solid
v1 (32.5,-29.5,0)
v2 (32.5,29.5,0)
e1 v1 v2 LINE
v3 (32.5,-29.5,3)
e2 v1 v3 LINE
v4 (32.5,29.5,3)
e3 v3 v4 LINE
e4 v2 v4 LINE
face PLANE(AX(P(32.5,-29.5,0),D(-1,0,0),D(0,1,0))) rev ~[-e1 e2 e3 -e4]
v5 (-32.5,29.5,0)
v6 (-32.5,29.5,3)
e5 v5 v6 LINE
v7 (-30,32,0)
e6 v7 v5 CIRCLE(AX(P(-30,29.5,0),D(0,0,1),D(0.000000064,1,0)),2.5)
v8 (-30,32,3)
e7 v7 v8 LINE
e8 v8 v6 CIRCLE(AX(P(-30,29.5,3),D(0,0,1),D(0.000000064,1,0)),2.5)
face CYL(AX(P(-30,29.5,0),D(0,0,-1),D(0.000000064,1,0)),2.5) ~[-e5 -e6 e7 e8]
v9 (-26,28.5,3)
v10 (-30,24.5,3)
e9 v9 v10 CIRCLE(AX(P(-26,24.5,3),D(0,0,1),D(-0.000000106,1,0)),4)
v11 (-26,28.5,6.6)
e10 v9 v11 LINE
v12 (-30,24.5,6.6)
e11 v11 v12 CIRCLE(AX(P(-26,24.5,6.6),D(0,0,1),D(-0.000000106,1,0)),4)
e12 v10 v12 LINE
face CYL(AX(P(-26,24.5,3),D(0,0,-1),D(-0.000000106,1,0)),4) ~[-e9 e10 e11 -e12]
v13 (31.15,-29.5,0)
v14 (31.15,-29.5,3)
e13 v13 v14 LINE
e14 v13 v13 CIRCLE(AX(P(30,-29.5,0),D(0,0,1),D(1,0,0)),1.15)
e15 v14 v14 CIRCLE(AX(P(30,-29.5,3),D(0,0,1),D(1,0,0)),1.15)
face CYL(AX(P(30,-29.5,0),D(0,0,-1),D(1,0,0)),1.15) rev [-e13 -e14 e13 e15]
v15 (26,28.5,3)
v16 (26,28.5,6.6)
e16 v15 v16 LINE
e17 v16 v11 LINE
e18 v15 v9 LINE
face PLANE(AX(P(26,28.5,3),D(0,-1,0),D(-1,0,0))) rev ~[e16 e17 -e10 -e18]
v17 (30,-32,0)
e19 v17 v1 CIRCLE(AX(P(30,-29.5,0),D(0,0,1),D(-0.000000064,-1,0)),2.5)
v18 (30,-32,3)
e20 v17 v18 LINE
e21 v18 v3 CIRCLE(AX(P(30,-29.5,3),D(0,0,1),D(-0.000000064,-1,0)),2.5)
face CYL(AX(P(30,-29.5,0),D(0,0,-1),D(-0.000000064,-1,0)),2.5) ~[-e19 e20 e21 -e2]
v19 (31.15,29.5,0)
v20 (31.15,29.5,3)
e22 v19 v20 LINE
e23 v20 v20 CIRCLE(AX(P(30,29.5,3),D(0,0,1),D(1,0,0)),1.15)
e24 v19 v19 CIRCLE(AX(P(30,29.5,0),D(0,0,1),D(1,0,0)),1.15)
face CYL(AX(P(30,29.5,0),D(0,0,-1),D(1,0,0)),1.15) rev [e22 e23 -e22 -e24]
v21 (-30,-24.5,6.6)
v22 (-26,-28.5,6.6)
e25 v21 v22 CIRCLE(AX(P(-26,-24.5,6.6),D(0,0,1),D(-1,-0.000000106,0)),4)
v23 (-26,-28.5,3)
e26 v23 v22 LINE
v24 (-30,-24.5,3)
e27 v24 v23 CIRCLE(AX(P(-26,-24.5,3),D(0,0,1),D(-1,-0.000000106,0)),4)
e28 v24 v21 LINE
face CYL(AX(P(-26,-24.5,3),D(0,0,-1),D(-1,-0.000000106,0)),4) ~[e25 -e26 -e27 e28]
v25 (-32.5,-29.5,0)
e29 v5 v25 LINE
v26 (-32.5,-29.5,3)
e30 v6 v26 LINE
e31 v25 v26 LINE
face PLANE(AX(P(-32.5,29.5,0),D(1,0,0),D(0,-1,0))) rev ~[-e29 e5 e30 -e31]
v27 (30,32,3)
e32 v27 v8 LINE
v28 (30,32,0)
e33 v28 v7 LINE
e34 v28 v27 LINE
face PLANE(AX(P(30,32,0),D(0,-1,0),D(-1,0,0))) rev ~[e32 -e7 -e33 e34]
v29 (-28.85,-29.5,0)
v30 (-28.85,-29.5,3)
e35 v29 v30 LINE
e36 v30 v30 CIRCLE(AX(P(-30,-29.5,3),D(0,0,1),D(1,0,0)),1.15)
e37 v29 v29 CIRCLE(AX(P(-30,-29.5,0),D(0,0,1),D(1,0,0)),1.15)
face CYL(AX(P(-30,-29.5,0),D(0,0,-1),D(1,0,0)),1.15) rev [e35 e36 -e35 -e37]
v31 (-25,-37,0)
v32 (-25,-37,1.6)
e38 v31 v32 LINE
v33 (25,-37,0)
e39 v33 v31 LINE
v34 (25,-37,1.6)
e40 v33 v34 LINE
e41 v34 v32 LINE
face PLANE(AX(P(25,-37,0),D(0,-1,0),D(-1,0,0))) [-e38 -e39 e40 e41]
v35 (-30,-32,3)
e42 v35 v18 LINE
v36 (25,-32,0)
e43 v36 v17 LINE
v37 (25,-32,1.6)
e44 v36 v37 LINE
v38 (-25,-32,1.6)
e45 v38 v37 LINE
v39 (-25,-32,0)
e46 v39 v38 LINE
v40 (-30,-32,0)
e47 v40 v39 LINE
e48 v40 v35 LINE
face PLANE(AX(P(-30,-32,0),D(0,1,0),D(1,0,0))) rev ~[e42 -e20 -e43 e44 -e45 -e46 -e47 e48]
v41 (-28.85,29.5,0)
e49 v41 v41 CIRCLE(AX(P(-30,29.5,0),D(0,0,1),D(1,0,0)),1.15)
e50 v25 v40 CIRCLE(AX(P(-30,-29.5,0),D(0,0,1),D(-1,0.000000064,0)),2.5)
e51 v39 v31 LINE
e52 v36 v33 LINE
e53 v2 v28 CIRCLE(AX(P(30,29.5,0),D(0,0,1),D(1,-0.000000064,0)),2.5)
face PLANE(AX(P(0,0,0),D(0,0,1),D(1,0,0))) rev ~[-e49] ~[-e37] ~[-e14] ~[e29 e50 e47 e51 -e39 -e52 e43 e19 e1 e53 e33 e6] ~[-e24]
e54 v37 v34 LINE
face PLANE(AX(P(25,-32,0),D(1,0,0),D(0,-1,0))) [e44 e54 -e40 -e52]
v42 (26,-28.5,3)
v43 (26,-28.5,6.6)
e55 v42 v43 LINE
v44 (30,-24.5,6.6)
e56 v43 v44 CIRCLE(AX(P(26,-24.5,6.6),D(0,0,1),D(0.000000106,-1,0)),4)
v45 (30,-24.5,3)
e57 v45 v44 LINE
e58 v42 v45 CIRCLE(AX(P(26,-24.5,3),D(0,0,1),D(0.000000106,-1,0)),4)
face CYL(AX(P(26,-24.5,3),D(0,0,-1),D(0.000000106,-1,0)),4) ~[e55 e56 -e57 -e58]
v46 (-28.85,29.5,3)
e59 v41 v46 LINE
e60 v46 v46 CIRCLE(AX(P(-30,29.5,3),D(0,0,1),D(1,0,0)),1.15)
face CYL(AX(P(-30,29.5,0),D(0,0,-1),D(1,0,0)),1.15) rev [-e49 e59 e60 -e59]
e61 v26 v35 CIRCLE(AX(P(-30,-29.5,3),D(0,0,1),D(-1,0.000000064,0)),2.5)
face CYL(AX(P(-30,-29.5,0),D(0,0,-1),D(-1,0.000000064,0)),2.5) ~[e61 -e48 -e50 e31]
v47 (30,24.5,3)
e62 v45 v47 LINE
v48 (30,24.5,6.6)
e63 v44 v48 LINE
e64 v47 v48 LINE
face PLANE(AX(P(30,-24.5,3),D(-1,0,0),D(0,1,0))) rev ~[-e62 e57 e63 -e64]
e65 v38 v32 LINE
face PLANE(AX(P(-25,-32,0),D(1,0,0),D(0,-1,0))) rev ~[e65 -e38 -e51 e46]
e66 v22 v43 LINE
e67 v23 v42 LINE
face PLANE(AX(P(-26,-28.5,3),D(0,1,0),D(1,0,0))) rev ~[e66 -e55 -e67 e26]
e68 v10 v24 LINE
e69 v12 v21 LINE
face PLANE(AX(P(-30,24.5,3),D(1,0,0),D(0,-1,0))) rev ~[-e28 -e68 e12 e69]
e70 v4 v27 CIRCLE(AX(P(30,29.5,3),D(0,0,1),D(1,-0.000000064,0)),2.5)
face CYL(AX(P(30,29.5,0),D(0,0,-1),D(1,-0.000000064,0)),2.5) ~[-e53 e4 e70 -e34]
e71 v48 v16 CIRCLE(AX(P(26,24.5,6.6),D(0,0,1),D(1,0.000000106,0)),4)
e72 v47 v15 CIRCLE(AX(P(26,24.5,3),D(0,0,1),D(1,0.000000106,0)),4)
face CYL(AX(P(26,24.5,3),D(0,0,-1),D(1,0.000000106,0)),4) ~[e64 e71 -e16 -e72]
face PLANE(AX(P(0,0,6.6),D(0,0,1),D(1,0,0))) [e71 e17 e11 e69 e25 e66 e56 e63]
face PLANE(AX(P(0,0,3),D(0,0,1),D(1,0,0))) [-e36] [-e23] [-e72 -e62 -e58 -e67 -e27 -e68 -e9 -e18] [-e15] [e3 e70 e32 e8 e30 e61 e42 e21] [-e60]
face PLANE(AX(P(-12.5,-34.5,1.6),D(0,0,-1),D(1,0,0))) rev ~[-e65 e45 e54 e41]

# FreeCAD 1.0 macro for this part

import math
import FreeCAD as App
import Part
import Sketcher

V = App.Vector
Q = App.Units.Quantity


def add_polygon(sketch, points):
    """Adds a closed chain of lines whose ends are joined by coincident constraints."""
    first, n = sketch.GeometryCount, len(points)
    for a, b in zip(points, points[1:] + points[:1]):
        sketch.addGeometry(Part.LineSegment(App.Vector(*a, 0), App.Vector(*b, 0)), False)
    for i in range(n):
        sketch.addConstraint(Sketcher.Constraint("Coincident", first + i, 2, first + (i + 1) % n, 1))

doc = App.newDocument("Part")
body = doc.addObject("PartDesign::Body", "Body")

# Sketch on XY plane
sketch1 = body.newObject("Sketcher::SketchObject", "Sketch")
sketch1.AttachmentSupport = (doc.getObject("XY_Plane"), [""])
sketch1.MapMode = "FlatFace"
sketch1.addGeometry(Part.ArcOfCircle(Part.Circle(V(-30, -29.5, 0), V(0, 0, 1), 2.5), math.radians(180), math.radians(270)), False)
sketch1.addGeometry(Part.LineSegment(V(-30, -32, 0), V(30, -32, 0)), False)
sketch1.addGeometry(Part.ArcOfCircle(Part.Circle(V(30, -29.5, 0), V(0, 0, 1), 2.5), math.radians(-90), math.radians(0)), False)
sketch1.addGeometry(Part.LineSegment(V(32.5, -29.5, 0), V(32.5, 29.5, 0)), False)
sketch1.addGeometry(Part.ArcOfCircle(Part.Circle(V(30, 29.5, 0), V(0, 0, 1), 2.5), math.radians(0), math.radians(90)), False)
sketch1.addGeometry(Part.LineSegment(V(30, 32, 0), V(-30, 32, 0)), False)
sketch1.addGeometry(Part.ArcOfCircle(Part.Circle(V(-30, 29.5, 0), V(0, 0, 1), 2.5), math.radians(90), math.radians(180)), False)
sketch1.addGeometry(Part.LineSegment(V(-32.5, 29.5, 0), V(-32.5, -29.5, 0)), False)
sketch1.addGeometry(Part.Circle(V(-30, -29.5, 0), V(0, 0, 1), 1.1), False)
sketch1.addGeometry(Part.Circle(V(30, -29.5, 0), V(0, 0, 1), 1.1), False)
sketch1.addGeometry(Part.Circle(V(-30, 29.5, 0), V(0, 0, 1), 1.1), False)
sketch1.addGeometry(Part.Circle(V(30, 29.5, 0), V(0, 0, 1), 1.1), False)
sketch1.addConstraint(Sketcher.Constraint("Tangent", 0, 2, 1, 1))
sketch1.addConstraint(Sketcher.Constraint("Tangent", 1, 2, 2, 1))
sketch1.addConstraint(Sketcher.Constraint("Tangent", 2, 2, 3, 1))
sketch1.addConstraint(Sketcher.Constraint("Tangent", 3, 2, 4, 1))
sketch1.addConstraint(Sketcher.Constraint("Tangent", 4, 2, 5, 1))
sketch1.addConstraint(Sketcher.Constraint("Tangent", 5, 2, 6, 1))
sketch1.addConstraint(Sketcher.Constraint("Tangent", 6, 2, 7, 1))
sketch1.addConstraint(Sketcher.Constraint("Tangent", 7, 2, 0, 1))
sketch1.addConstraint(Sketcher.Constraint("Horizontal", 1))
sketch1.addConstraint(Sketcher.Constraint("Vertical", 3))
sketch1.addConstraint(Sketcher.Constraint("Horizontal", 5))
sketch1.addConstraint(Sketcher.Constraint("Vertical", 7))
sketch1.addConstraint(Sketcher.Constraint("Coincident", 8, 3, 0, 3))
sketch1.addConstraint(Sketcher.Constraint("Coincident", 9, 3, 2, 3))
sketch1.addConstraint(Sketcher.Constraint("Coincident", 10, 3, 6, 3))
sketch1.addConstraint(Sketcher.Constraint("Coincident", 11, 3, 4, 3))
sketch1.addConstraint(Sketcher.Constraint("Equal", 0, 2))
sketch1.addConstraint(Sketcher.Constraint("Equal", 2, 4))
sketch1.addConstraint(Sketcher.Constraint("Equal", 4, 6))
sketch1.addConstraint(Sketcher.Constraint("Equal", 8, 9))
sketch1.addConstraint(Sketcher.Constraint("Equal", 9, 10))
sketch1.addConstraint(Sketcher.Constraint("Equal", 10, 11))
sketch1.addConstraint(Sketcher.Constraint("Symmetric", 0, 3, 4, 3, -1, 1))
sketch1.addConstraint(Sketcher.Constraint("Diameter", 8, Q("2.3 mm")))
sketch1.addConstraint(Sketcher.Constraint("Radius", 0, Q("2.5 mm")))
sketch1.addConstraint(Sketcher.Constraint("DistanceX", 1, 1, 1, 2, Q("60 mm")))
sketch1.addConstraint(Sketcher.Constraint("DistanceY", 3, 1, 3, 2, Q("59 mm")))
pad1 = body.newObject("PartDesign::Pad", "Pad")
pad1.Profile = sketch1
pad1.Length = 3

# Sketch on XY plane
sketch2 = body.newObject("Sketcher::SketchObject", "Sketch001")
sketch2.AttachmentSupport = (doc.getObject("XY_Plane"), [""])
sketch2.MapMode = "FlatFace"
sketch2.AttachmentOffset = App.Placement(V(0, 0, 3), App.Rotation())
sketch2.addGeometry(Part.LineSegment(V(26, 28.5, 0), V(-26, 28.5, 0)), False)
sketch2.addGeometry(Part.ArcOfCircle(Part.Circle(V(-26, 24.5, 0), V(0, 0, 1), 4), math.radians(90), math.radians(180)), False)
sketch2.addGeometry(Part.LineSegment(V(-30, 24.5, 0), V(-30, -24.5, 0)), False)
sketch2.addGeometry(Part.ArcOfCircle(Part.Circle(V(-26, -24.5, 0), V(0, 0, 1), 4), math.radians(-180), math.radians(-90)), False)
sketch2.addGeometry(Part.LineSegment(V(-26, -28.5, 0), V(26, -28.5, 0)), False)
sketch2.addGeometry(Part.ArcOfCircle(Part.Circle(V(26, -24.5, 0), V(0, 0, 1), 4), math.radians(-90), math.radians(0)), False)
sketch2.addGeometry(Part.LineSegment(V(30, -24.5, 0), V(30, 24.5, 0)), False)
sketch2.addGeometry(Part.ArcOfCircle(Part.Circle(V(26, 24.5, 0), V(0, 0, 1), 4), math.radians(0), math.radians(90)), False)
sketch2.addConstraint(Sketcher.Constraint("Tangent", 0, 2, 1, 1))
sketch2.addConstraint(Sketcher.Constraint("Tangent", 1, 2, 2, 1))
sketch2.addConstraint(Sketcher.Constraint("Tangent", 2, 2, 3, 1))
sketch2.addConstraint(Sketcher.Constraint("Tangent", 3, 2, 4, 1))
sketch2.addConstraint(Sketcher.Constraint("Tangent", 4, 2, 5, 1))
sketch2.addConstraint(Sketcher.Constraint("Tangent", 5, 2, 6, 1))
sketch2.addConstraint(Sketcher.Constraint("Tangent", 6, 2, 7, 1))
sketch2.addConstraint(Sketcher.Constraint("Tangent", 7, 2, 0, 1))
sketch2.addConstraint(Sketcher.Constraint("Horizontal", 0))
sketch2.addConstraint(Sketcher.Constraint("Vertical", 2))
sketch2.addConstraint(Sketcher.Constraint("Horizontal", 4))
sketch2.addConstraint(Sketcher.Constraint("Vertical", 6))
sketch2.addConstraint(Sketcher.Constraint("Equal", 1, 3))
sketch2.addConstraint(Sketcher.Constraint("Equal", 3, 5))
sketch2.addConstraint(Sketcher.Constraint("Equal", 5, 7))
sketch2.addConstraint(Sketcher.Constraint("Symmetric", 1, 3, 5, 3, -1, 1))
sketch2.addConstraint(Sketcher.Constraint("Radius", 1, Q("4 mm")))
sketch2.addConstraint(Sketcher.Constraint("DistanceX", 0, 2, 0, 1, Q("52 mm")))
sketch2.addConstraint(Sketcher.Constraint("DistanceY", 2, 2, 2, 1, Q("49 mm")))
pad2 = body.newObject("PartDesign::Pad", "Pad001")
pad2.Profile = sketch2
pad2.Length = 3.6

# Sketch on XY plane
sketch3 = body.newObject("Sketcher::SketchObject", "Sketch002")
sketch3.AttachmentSupport = (doc.getObject("XY_Plane"), [""])
sketch3.MapMode = "FlatFace"
add_polygon(sketch3, [(-25, -37), (-25, -32), (25, -32), (25, -37)])  # lines 0-3
sketch3.addConstraint(Sketcher.Constraint("Vertical", 0))
sketch3.addConstraint(Sketcher.Constraint("Horizontal", 1))
sketch3.addConstraint(Sketcher.Constraint("Vertical", 2))
sketch3.addConstraint(Sketcher.Constraint("Horizontal", 3))
sketch3.addConstraint(Sketcher.Constraint("DistanceX", 1, 1, 1, 2, Q("50 mm")))
sketch3.addConstraint(Sketcher.Constraint("DistanceY", 0, 1, 0, 2, Q("5 mm")))
sketch3.addConstraint(Sketcher.Constraint("DistanceX", 0, 2, -1, 1, Q("25 mm")))
sketch3.addConstraint(Sketcher.Constraint("DistanceY", 0, 2, -1, 1, Q("32 mm")))
pad3 = body.newObject("PartDesign::Pad", "Pad002")
pad3.Profile = sketch3
pad3.Length = 1.6

doc.recompute()
